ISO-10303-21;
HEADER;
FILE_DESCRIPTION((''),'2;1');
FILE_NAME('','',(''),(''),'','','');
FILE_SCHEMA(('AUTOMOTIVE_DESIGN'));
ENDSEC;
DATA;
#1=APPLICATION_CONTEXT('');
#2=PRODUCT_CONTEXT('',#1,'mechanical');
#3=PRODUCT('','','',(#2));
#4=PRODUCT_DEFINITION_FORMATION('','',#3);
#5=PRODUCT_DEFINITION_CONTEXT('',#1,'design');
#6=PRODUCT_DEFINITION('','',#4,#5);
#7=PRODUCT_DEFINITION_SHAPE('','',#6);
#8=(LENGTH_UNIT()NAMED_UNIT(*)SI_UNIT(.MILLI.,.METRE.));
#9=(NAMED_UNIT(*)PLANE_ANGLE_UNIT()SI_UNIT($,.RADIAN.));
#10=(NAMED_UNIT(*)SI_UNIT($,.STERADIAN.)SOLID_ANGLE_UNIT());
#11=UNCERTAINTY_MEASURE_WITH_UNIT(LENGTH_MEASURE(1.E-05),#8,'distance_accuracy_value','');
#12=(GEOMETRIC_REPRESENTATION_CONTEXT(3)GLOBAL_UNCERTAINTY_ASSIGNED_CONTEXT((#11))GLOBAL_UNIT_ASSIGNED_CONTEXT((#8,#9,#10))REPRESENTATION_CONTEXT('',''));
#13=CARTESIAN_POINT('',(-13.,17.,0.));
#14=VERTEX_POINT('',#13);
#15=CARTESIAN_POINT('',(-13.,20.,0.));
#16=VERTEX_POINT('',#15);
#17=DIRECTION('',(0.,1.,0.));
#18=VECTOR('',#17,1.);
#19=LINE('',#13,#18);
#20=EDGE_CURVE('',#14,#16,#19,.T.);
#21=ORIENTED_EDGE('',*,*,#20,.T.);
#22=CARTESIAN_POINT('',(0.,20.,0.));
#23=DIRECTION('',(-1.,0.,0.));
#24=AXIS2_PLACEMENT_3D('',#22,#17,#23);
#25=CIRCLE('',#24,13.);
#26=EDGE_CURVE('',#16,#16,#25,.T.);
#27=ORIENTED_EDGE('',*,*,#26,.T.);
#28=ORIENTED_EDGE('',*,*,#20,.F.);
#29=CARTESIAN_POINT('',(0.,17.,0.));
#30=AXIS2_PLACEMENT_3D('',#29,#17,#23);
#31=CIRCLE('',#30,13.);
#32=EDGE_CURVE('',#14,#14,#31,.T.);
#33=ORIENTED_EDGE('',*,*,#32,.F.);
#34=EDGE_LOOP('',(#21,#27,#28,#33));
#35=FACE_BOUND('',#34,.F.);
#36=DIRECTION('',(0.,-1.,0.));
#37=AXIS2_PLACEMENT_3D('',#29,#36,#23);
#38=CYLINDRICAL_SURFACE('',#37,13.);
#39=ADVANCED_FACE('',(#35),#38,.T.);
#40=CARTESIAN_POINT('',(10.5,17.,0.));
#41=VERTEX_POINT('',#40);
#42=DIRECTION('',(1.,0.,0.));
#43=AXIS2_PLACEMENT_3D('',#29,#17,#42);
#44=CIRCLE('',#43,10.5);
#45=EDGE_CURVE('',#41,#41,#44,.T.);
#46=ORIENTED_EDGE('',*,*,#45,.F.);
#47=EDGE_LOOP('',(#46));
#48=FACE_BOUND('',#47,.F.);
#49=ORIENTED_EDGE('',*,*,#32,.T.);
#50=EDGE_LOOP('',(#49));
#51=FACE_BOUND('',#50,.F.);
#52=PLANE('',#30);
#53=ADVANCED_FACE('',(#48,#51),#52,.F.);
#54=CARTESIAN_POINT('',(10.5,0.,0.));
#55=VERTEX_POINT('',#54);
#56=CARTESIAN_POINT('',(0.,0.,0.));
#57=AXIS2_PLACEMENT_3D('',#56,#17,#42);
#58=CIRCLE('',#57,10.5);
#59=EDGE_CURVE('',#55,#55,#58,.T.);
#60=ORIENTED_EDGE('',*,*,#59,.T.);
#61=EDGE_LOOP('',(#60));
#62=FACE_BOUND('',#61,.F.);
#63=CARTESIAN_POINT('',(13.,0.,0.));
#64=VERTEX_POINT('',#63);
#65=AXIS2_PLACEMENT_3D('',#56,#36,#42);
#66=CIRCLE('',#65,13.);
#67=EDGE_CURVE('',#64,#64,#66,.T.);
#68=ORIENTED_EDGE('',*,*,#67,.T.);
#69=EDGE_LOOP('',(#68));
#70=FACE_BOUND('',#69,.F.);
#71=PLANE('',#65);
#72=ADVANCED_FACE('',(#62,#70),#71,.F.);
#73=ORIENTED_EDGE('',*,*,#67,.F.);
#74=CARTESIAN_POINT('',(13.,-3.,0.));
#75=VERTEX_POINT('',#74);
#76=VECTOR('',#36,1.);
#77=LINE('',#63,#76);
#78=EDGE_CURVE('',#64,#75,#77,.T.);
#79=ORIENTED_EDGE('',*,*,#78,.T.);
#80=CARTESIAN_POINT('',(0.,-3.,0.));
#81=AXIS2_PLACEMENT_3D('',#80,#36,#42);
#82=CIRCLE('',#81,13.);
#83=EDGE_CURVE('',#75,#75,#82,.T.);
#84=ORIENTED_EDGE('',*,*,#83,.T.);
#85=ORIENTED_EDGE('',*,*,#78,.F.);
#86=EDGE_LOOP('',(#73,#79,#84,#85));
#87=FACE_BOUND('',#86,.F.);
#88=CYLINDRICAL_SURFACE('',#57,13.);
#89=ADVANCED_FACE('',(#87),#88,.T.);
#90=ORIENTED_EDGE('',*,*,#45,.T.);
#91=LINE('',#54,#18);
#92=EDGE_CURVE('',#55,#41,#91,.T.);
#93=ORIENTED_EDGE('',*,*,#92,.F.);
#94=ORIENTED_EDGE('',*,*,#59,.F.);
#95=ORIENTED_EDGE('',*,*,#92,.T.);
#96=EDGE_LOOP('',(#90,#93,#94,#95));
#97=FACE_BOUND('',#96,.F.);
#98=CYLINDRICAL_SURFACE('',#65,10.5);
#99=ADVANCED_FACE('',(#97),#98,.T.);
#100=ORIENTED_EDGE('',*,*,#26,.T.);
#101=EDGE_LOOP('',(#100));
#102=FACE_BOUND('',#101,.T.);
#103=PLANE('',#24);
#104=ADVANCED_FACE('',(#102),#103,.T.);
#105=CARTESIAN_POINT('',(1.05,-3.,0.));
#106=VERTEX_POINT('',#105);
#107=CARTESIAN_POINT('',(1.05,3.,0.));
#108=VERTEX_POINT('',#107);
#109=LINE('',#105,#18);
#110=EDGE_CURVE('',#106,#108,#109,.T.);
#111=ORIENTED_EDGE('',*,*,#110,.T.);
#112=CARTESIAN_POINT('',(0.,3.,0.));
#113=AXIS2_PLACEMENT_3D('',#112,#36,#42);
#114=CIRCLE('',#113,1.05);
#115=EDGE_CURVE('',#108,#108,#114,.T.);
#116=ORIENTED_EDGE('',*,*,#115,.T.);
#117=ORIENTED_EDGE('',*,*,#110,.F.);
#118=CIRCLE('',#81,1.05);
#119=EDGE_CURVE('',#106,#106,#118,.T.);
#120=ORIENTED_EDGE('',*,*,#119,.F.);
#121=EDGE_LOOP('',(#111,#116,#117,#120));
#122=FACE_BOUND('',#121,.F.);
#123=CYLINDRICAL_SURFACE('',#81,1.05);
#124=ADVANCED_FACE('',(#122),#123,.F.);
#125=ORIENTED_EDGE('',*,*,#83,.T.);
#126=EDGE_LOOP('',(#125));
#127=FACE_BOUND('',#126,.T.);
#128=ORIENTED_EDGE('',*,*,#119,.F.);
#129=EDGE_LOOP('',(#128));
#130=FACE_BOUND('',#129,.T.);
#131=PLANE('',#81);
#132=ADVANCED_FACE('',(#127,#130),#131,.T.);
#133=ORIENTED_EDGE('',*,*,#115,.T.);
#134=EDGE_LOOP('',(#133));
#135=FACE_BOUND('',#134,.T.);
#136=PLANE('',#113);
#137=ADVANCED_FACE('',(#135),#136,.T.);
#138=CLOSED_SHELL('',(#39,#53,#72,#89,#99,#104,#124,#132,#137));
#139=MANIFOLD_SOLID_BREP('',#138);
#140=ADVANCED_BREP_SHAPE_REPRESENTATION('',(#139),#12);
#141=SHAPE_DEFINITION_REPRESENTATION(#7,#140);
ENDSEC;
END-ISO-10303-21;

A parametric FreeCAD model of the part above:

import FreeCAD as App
import Part
import Sketcher
Q = App.Units.Quantity

doc = App.newDocument("Part")
body = doc.addObject("PartDesign::Body", "Body")

# Sketch on XZ plane
sketch1 = doc.addObject("Sketcher::SketchObject", "Sketch")
body.addObject(sketch1)
sketch1.AttachmentSupport = (doc.XZ_Plane, [""])
sketch1.MapMode = "FlatFace"
sketch1.addGeometry(Part.Circle(App.Vector(0, 0, 0), App.Vector(0, 0, 1), 10), False)
sketch1.addConstraint([
    Sketcher.Constraint("Coincident", 0, 3, -1, 1),
    Sketcher.Constraint("Diameter", 0, Q("21 mm")),
])
pad1 = doc.addObject("PartDesign::Pad", "Pad")
body.addObject(pad1)
pad1.Profile = sketch1
pad1.Length = 17
pad1.Reversed = True

# Sketch on XZ plane
sketch2 = doc.addObject("Sketcher::SketchObject", "Sketch001")
body.addObject(sketch2)
sketch2.AttachmentSupport = (doc.XZ_Plane, [""])
sketch2.MapMode = "FlatFace"
sketch2.addGeometry(Part.Circle(App.Vector(0, 0, 0), App.Vector(0, 0, 1), 13), False)
sketch2.addConstraint([
    Sketcher.Constraint("Coincident", 0, 3, -1, 1),
    Sketcher.Constraint("Diameter", 0, Q("26 mm")),
])
pad2 = doc.addObject("PartDesign::Pad", "Pad001")
body.addObject(pad2)
pad2.Profile = sketch2
pad2.Length = 3

# Sketch on XZ plane
sketch3 = doc.addObject("Sketcher::SketchObject", "Sketch002")
body.addObject(sketch3)
sketch3.AttachmentSupport = (doc.XZ_Plane, [""])
sketch3.MapMode = "FlatFace"
sketch3.AttachmentOffset = App.Placement(App.Vector(0, 0, -17), App.Rotation())
sketch3.addGeometry(Part.Circle(App.Vector(0, 0, 0), App.Vector(0, 0, 1), 13), False)
sketch3.addConstraint([
    Sketcher.Constraint("Coincident", 0, 3, -1, 1),
    Sketcher.Constraint("Diameter", 0, Q("26 mm")),
])
pad3 = doc.addObject("PartDesign::Pad", "Pad002")
body.addObject(pad3)
pad3.Profile = sketch3
pad3.Length = 3
pad3.Reversed = True

# Sketch on XZ plane
sketch4 = doc.addObject("Sketcher::SketchObject", "Sketch003")
body.addObject(sketch4)
sketch4.AttachmentSupport = (doc.XZ_Plane, [""])
sketch4.MapMode = "FlatFace"
sketch4.AttachmentOffset = App.Placement(App.Vector(0, 0, 3), App.Rotation())
sketch4.addGeometry(Part.Circle(App.Vector(0, 0, 0), App.Vector(0, 0, 1), 1.1), False)
sketch4.addConstraint([
    Sketcher.Constraint("Coincident", 0, 3, -1, 1),
    Sketcher.Constraint("Diameter", 0, Q("2.1 mm")),
])
pocket1 = doc.addObject("PartDesign::Pocket", "Pocket")
body.addObject(pocket1)
pocket1.Profile = sketch4
pocket1.Length = 6

doc.recompute()
